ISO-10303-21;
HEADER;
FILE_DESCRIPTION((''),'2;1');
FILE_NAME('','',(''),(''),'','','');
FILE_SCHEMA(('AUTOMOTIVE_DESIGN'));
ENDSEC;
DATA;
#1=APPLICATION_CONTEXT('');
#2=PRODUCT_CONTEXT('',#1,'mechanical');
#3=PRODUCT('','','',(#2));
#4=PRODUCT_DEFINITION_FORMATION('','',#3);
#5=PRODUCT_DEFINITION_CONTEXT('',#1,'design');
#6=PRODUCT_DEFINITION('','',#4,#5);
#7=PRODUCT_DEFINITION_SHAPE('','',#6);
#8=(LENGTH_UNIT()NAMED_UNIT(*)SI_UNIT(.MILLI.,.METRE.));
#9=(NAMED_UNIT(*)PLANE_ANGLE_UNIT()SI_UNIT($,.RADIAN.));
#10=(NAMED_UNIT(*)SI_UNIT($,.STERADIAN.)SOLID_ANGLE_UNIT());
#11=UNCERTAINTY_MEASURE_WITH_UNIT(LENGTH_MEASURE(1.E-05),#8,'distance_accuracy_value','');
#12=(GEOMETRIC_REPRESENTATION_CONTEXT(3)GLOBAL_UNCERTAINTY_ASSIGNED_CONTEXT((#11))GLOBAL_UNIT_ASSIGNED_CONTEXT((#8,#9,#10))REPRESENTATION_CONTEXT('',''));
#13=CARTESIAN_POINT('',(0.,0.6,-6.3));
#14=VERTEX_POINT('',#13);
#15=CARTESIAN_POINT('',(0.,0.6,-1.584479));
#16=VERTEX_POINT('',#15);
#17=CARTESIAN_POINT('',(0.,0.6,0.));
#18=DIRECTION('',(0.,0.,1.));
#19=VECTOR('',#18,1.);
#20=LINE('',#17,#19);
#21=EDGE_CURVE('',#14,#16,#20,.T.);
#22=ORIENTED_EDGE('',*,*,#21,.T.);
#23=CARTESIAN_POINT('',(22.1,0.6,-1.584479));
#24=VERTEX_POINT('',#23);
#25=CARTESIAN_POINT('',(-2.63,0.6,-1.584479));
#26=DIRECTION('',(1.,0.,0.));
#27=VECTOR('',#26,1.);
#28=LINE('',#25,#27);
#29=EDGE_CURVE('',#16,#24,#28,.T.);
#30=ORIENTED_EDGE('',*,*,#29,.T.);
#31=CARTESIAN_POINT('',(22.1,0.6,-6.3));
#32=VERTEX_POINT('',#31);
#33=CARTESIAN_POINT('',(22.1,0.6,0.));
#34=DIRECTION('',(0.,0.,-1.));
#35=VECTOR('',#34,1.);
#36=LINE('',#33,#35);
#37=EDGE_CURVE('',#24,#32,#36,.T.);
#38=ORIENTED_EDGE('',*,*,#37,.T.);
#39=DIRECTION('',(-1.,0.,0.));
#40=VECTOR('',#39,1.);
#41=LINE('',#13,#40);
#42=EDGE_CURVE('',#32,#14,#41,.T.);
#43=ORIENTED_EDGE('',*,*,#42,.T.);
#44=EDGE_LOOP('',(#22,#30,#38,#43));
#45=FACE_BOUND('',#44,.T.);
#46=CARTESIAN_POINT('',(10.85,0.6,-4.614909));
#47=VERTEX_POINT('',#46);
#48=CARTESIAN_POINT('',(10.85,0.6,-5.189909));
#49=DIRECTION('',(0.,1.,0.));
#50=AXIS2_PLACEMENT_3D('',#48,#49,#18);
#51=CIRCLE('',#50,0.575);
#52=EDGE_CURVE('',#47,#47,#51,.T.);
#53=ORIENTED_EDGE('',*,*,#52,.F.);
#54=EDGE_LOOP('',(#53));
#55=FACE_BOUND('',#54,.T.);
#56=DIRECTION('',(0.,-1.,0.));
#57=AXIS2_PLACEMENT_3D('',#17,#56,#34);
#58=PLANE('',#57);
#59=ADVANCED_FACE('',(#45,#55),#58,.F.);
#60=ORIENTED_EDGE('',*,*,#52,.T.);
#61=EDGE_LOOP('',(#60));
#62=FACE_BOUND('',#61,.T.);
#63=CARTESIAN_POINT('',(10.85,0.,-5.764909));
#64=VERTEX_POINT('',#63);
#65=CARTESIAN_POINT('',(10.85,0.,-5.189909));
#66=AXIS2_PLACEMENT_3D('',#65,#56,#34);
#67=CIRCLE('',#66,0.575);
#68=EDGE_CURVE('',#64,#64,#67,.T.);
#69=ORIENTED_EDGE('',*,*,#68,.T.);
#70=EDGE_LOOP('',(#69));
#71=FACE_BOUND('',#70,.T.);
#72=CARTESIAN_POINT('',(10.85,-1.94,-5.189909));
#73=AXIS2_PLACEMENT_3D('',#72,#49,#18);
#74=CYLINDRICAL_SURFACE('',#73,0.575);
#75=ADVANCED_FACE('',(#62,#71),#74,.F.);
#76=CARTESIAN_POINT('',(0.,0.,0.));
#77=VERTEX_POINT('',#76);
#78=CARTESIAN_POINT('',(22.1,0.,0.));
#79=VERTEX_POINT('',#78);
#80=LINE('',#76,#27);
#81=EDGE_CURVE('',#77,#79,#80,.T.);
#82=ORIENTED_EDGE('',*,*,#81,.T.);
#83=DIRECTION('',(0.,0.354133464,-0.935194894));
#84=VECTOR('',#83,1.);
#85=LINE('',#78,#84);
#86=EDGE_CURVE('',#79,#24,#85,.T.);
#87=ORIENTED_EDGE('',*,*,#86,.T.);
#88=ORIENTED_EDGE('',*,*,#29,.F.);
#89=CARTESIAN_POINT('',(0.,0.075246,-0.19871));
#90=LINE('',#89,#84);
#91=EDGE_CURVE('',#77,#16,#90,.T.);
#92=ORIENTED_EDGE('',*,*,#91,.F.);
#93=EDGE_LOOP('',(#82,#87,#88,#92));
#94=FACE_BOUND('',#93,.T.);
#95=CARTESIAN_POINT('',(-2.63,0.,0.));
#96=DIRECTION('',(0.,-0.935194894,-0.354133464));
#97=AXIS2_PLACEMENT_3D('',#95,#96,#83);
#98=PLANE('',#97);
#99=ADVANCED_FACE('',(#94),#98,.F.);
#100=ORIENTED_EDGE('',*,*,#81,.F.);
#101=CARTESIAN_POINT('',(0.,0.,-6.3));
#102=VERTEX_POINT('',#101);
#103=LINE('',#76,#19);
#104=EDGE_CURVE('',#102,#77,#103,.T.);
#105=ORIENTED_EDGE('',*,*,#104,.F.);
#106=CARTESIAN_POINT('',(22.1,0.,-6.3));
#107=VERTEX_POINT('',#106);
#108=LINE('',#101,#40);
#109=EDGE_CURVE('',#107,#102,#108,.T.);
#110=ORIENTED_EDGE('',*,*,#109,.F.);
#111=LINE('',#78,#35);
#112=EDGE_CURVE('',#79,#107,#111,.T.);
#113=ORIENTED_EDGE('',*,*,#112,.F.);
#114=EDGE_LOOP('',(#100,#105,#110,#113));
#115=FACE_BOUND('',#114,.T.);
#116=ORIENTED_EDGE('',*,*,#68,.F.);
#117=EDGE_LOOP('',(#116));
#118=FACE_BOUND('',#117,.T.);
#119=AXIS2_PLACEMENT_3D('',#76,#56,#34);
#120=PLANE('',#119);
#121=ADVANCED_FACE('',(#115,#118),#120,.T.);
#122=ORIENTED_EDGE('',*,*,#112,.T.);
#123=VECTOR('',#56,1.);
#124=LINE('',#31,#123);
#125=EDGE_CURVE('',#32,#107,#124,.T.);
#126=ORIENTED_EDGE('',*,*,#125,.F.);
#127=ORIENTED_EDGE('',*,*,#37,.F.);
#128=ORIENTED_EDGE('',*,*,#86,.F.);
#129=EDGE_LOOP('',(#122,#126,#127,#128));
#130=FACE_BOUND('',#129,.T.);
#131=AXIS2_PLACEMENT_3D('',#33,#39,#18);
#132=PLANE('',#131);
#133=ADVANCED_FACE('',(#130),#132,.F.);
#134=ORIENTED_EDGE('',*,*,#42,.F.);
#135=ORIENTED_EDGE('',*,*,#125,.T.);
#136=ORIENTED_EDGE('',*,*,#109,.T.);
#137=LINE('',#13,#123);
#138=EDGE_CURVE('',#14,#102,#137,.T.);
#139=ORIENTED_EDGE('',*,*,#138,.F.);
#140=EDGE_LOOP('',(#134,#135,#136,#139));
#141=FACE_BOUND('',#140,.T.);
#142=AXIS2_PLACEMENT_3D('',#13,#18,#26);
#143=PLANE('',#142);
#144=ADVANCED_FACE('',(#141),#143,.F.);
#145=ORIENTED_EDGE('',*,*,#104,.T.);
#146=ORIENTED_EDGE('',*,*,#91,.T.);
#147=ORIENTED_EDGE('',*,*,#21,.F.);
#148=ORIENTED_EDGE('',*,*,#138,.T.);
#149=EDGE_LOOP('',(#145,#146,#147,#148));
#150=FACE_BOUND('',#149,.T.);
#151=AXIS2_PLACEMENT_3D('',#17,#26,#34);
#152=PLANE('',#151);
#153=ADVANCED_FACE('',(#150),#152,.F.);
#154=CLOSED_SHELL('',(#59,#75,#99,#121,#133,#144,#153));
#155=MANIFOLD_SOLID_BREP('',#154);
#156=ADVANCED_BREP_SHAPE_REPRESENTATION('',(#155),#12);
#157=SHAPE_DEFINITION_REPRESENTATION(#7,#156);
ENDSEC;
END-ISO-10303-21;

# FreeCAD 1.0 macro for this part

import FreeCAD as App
import Part
import Sketcher

V = App.Vector

doc = App.newDocument("Part")
body = doc.addObject("PartDesign::Body", "Body")

# Sketch on XZ plane
sketch1 = body.newObject("Sketcher::SketchObject", "Sketch")
sketch1.AttachmentSupport = (doc.getObject("XZ_Plane"), [""])
sketch1.MapMode = "FlatFace"
sketch1.addGeometry([
    Part.LineSegment(V(0, -6, 0), V(0, 0, 0)),
    Part.LineSegment(V(0, 0, 0), V(22, 0, 0)),
    Part.LineSegment(V(22, 0, 0), V(22, -6, 0)),
    Part.LineSegment(V(22, -6, 0), V(0, -6, 0)),
], False)
sketch1.addConstraint([
    Sketcher.Constraint("Coincident", 0, 2, 1, 1),
    Sketcher.Constraint("Coincident", 1, 2, 2, 1),
    Sketcher.Constraint("Coincident", 2, 2, 3, 1),
    Sketcher.Constraint("Coincident", 3, 2, 0, 1),
    Sketcher.Constraint("Vertical", 0),
    Sketcher.Constraint("Horizontal", 1),
    Sketcher.Constraint("Vertical", 2),
    Sketcher.Constraint("Horizontal", 3),
    Sketcher.Constraint("Coincident", 0, 2, -1, 1),
    Sketcher.Constraint("DistanceX", 1, 1, 1, 2, 22.1),
    Sketcher.Constraint("DistanceY", 0, 1, 0, 2, 6.3),
])
pad1 = body.newObject("PartDesign::Pad", "Pad")
pad1.Profile = sketch1
pad1.Length = 0.6
pad1.Reversed = True

# Sketch on YZ plane
sketch2 = body.newObject("Sketcher::SketchObject", "Sketch001")
sketch2.AttachmentSupport = (doc.getObject("YZ_Plane"), [""])
sketch2.MapMode = "FlatFace"
sketch2.AttachmentOffset = App.Placement(V(0, 0, 22.1), App.Rotation())
sketch2.addGeometry([
    Part.LineSegment(V(0.6, 0, 0), V(0, 0, 0)),
    Part.LineSegment(V(0, 0, 0), V(0.6, -1.6, 0)),
    Part.LineSegment(V(0.6, -1.6, 0), V(0.6, 0, 0)),
], False)
sketch2.addConstraint([
    Sketcher.Constraint("Coincident", 0, 2, 1, 1),
    Sketcher.Constraint("Coincident", 1, 2, 2, 1),
    Sketcher.Constraint("Coincident", 2, 2, 0, 1),
    Sketcher.Constraint("Horizontal", 0),
    Sketcher.Constraint("Vertical", 2),
    Sketcher.Constraint("Coincident", 0, 2, -1, 1),
    Sketcher.Constraint("DistanceX", 0, 2, 0, 1, 0.6),
    Sketcher.Constraint("DistanceY", 2, 1, 2, 2, 1.584479),
])
pocket1 = body.newObject("PartDesign::Pocket", "Pocket")
pocket1.Profile = sketch2
pocket1.Length = 24.73

# Sketch on XZ plane
sketch3 = body.newObject("Sketcher::SketchObject", "Sketch002")
sketch3.AttachmentSupport = (doc.getObject("XZ_Plane"), [""])
sketch3.MapMode = "FlatFace"
sketch3.AttachmentOffset = App.Placement(V(0, 0, -0.6), App.Rotation())
sketch3.addGeometry(Part.Circle(V(10.8, -5.2, 0), V(0, 0, 1), 0.6), False)
sketch3.addConstraint([
    Sketcher.Constraint("Diameter", 0, 1.15),
    Sketcher.Constraint("DistanceX", -1, 1, 0, 3, 10.85),
    Sketcher.Constraint("DistanceY", 0, 3, -1, 1, 5.189909),
])
pocket2 = body.newObject("PartDesign::Pocket", "Pocket001")
pocket2.Profile = sketch3
pocket2.Length = 2.54
pocket2.Reversed = True

doc.recompute()
